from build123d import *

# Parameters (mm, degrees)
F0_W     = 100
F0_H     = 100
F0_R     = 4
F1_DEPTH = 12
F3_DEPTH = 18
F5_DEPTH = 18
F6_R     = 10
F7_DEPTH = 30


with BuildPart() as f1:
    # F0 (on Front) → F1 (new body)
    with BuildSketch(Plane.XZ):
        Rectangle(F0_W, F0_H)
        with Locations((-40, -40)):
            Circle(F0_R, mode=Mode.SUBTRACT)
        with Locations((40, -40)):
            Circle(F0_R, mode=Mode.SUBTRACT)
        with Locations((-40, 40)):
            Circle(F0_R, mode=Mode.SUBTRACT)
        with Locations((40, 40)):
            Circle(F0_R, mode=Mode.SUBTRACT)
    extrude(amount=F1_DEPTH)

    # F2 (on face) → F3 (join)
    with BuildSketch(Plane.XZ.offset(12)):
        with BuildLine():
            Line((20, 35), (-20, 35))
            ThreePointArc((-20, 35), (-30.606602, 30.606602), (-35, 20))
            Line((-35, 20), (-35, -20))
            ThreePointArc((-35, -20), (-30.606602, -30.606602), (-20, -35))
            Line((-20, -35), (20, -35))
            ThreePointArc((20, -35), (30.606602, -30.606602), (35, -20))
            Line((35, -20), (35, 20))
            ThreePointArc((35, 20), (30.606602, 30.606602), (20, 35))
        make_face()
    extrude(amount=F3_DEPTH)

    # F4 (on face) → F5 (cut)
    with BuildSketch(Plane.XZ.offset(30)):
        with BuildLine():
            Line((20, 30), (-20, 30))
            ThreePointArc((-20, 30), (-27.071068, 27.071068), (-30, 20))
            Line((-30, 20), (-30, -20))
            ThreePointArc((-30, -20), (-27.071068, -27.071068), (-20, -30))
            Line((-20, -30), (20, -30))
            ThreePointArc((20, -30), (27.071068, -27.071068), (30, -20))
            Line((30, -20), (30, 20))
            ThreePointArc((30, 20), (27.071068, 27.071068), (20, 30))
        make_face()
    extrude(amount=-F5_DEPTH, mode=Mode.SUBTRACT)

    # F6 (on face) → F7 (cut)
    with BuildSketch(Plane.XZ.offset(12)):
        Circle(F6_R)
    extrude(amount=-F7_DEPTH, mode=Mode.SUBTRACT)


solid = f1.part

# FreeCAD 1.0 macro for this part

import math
import FreeCAD as App
import Part
import Sketcher
Q = App.Units.Quantity


def add_polygon(sketch, points):
    """Adds a closed chain of lines whose ends are joined by coincident constraints."""
    first, n = sketch.GeometryCount, len(points)
    for a, b in zip(points, points[1:] + points[:1]):
        sketch.addGeometry(Part.LineSegment(App.Vector(*a, 0), App.Vector(*b, 0)), False)
    for i in range(n):
        sketch.addConstraint(Sketcher.Constraint("Coincident", first + i, 2, first + (i + 1) % n, 1))

doc = App.newDocument("Part")
body = doc.addObject("PartDesign::Body", "Body")

# Sketch on XZ plane
sketch1 = body.newObject("Sketcher::SketchObject", "Sketch")
sketch1.AttachmentSupport = (doc.getObject("XZ_Plane"), [""])
sketch1.MapMode = "FlatFace"
add_polygon(sketch1, [(-50, 50), (-50, -50), (50, -50), (50, 50)])  # lines 0-3
sketch1.addGeometry(Part.Circle(App.Vector(-40, -40, 0), App.Vector(0, 0, 1), 4), False)  # 4
sketch1.addGeometry(Part.Circle(App.Vector(40, -40, 0), App.Vector(0, 0, 1), 4), False)  # 5
sketch1.addGeometry(Part.Circle(App.Vector(-40, 40, 0), App.Vector(0, 0, 1), 4), False)  # 6
sketch1.addGeometry(Part.Circle(App.Vector(40, 40, 0), App.Vector(0, 0, 1), 4), False)  # 7
sketch1.addConstraint([
    Sketcher.Constraint("Vertical", 0),
    Sketcher.Constraint("Horizontal", 1),
    Sketcher.Constraint("Vertical", 2),
    Sketcher.Constraint("Horizontal", 3),
    Sketcher.Constraint("Equal", 4, 5),
    Sketcher.Constraint("Equal", 5, 6),
    Sketcher.Constraint("Equal", 6, 7),
    Sketcher.Constraint("Symmetric", 5, 3, 6, 3, -1, 1),
    Sketcher.Constraint("Symmetric", 4, 3, 7, 3, -1, 1),
    Sketcher.Constraint("Symmetric", 0, 2, 2, 2, -1, 1),
    Sketcher.Constraint("Symmetric", 4, 3, 5, 3, -2),
    Sketcher.Constraint("Equal", 3, 0),
    Sketcher.Constraint("Diameter", 4, Q("8 mm")),
    Sketcher.Constraint("DistanceX", 1, 1, 1, 2, Q("100 mm")),
    Sketcher.Constraint("DistanceX", 4, 3, -1, 1, Q("40 mm")),
    Sketcher.Constraint("DistanceY", 4, 3, -1, 1, Q("40 mm")),
])
pad1 = body.newObject("PartDesign::Pad", "Pad")
pad1.Profile = sketch1
pad1.Length = 12

# Sketch on XZ plane
sketch2 = body.newObject("Sketcher::SketchObject", "Sketch001")
sketch2.AttachmentSupport = (doc.getObject("XZ_Plane"), [""])
sketch2.MapMode = "FlatFace"
sketch2.AttachmentOffset = App.Placement(App.Vector(0, 0, 12), App.Rotation())
sketch2.addGeometry([
    Part.LineSegment(App.Vector(20, 35, 0), App.Vector(-20, 35, 0)),  # 0
    Part.ArcOfCircle(Part.Circle(App.Vector(-20, 20, 0), App.Vector(0, 0, 1), 15), math.radians(90), math.radians(180)),  # 1
    Part.LineSegment(App.Vector(-35, 20, 0), App.Vector(-35, -20, 0)),  # 2
    Part.ArcOfCircle(Part.Circle(App.Vector(-20, -20, 0), App.Vector(0, 0, 1), 15), math.radians(180), math.radians(270)),  # 3
    Part.LineSegment(App.Vector(-20, -35, 0), App.Vector(20, -35, 0)),  # 4
    Part.ArcOfCircle(Part.Circle(App.Vector(20, -20, 0), App.Vector(0, 0, 1), 15), math.radians(-90), math.radians(0)),  # 5
    Part.LineSegment(App.Vector(35, -20, 0), App.Vector(35, 20, 0)),  # 6
    Part.ArcOfCircle(Part.Circle(App.Vector(20, 20, 0), App.Vector(0, 0, 1), 15), math.radians(0), math.radians(90)),  # 7
], False)
sketch2.addConstraint([
    Sketcher.Constraint("Tangent", 0, 2, 1, 1),
    Sketcher.Constraint("Tangent", 1, 2, 2, 1),
    Sketcher.Constraint("Tangent", 2, 2, 3, 1),
    Sketcher.Constraint("Tangent", 3, 2, 4, 1),
    Sketcher.Constraint("Tangent", 4, 2, 5, 1),
    Sketcher.Constraint("Tangent", 5, 2, 6, 1),
    Sketcher.Constraint("Tangent", 6, 2, 7, 1),
    Sketcher.Constraint("Tangent", 7, 2, 0, 1),
    Sketcher.Constraint("Horizontal", 0),
    Sketcher.Constraint("Vertical", 2),
    Sketcher.Constraint("Horizontal", 4),
    Sketcher.Constraint("Vertical", 6),
    Sketcher.Constraint("Equal", 1, 3),
    Sketcher.Constraint("Equal", 3, 5),
    Sketcher.Constraint("Equal", 5, 7),
    Sketcher.Constraint("Symmetric", 1, 3, 5, 3, -1, 1),
    Sketcher.Constraint("Equal", 4, 2),
    Sketcher.Constraint("Radius", 1, Q("14.999999 mm")),
    Sketcher.Constraint("DistanceX", 0, 2, 0, 1, Q("40 mm")),
])
pad2 = body.newObject("PartDesign::Pad", "Pad001")
pad2.Profile = sketch2
pad2.Length = 18

# Sketch on XZ plane
sketch3 = body.newObject("Sketcher::SketchObject", "Sketch002")
sketch3.AttachmentSupport = (doc.getObject("XZ_Plane"), [""])
sketch3.MapMode = "FlatFace"
sketch3.AttachmentOffset = App.Placement(App.Vector(0, 0, 30), App.Rotation())
sketch3.addGeometry([
    Part.LineSegment(App.Vector(20, 30, 0), App.Vector(-20, 30, 0)),  # 0
    Part.ArcOfCircle(Part.Circle(App.Vector(-20, 20, 0), App.Vector(0, 0, 1), 10), math.radians(90), math.radians(180)),  # 1
    Part.LineSegment(App.Vector(-30, 20, 0), App.Vector(-30, -20, 0)),  # 2
    Part.ArcOfCircle(Part.Circle(App.Vector(-20, -20, 0), App.Vector(0, 0, 1), 10), math.radians(180), math.radians(270)),  # 3
    Part.LineSegment(App.Vector(-20, -30, 0), App.Vector(20, -30, 0)),  # 4
    Part.ArcOfCircle(Part.Circle(App.Vector(20, -20, 0), App.Vector(0, 0, 1), 10), math.radians(-90), math.radians(0)),  # 5
    Part.LineSegment(App.Vector(30, -20, 0), App.Vector(30, 20, 0)),  # 6
    Part.ArcOfCircle(Part.Circle(App.Vector(20, 20, 0), App.Vector(0, 0, 1), 10), math.radians(0), math.radians(90)),  # 7
], False)
sketch3.addConstraint([
    Sketcher.Constraint("Tangent", 0, 2, 1, 1),
    Sketcher.Constraint("Tangent", 1, 2, 2, 1),
    Sketcher.Constraint("Tangent", 2, 2, 3, 1),
    Sketcher.Constraint("Tangent", 3, 2, 4, 1),
    Sketcher.Constraint("Tangent", 4, 2, 5, 1),
    Sketcher.Constraint("Tangent", 5, 2, 6, 1),
    Sketcher.Constraint("Tangent", 6, 2, 7, 1),
    Sketcher.Constraint("Tangent", 7, 2, 0, 1),
    Sketcher.Constraint("Horizontal", 0),
    Sketcher.Constraint("Vertical", 2),
    Sketcher.Constraint("Horizontal", 4),
    Sketcher.Constraint("Vertical", 6),
    Sketcher.Constraint("Equal", 1, 3),
    Sketcher.Constraint("Equal", 3, 5),
    Sketcher.Constraint("Equal", 5, 7),
    Sketcher.Constraint("Symmetric", 1, 3, 5, 3, -1, 1),
    Sketcher.Constraint("Equal", 4, 2),
    Sketcher.Constraint("Radius", 1, Q("9.999999 mm")),
    Sketcher.Constraint("DistanceX", 0, 2, 0, 1, Q("40 mm")),
])
pocket1 = body.newObject("PartDesign::Pocket", "Pocket")
pocket1.Profile = sketch3
pocket1.Length = 18

# Sketch on XZ plane
sketch4 = body.newObject("Sketcher::SketchObject", "Sketch003")
sketch4.AttachmentSupport = (doc.getObject("XZ_Plane"), [""])
sketch4.MapMode = "FlatFace"
sketch4.AttachmentOffset = App.Placement(App.Vector(0, 0, 12), App.Rotation())
sketch4.addGeometry(Part.Circle(App.Vector(0, 0, 0), App.Vector(0, 0, 1), 10), False)
sketch4.addConstraint([
    Sketcher.Constraint("Coincident", 0, 3, -1, 1),
    Sketcher.Constraint("Diameter", 0, Q("20 mm")),
])
pocket2 = body.newObject("PartDesign::Pocket", "Pocket001")
pocket2.Profile = sketch4
pocket2.Length = 30

doc.recompute()
